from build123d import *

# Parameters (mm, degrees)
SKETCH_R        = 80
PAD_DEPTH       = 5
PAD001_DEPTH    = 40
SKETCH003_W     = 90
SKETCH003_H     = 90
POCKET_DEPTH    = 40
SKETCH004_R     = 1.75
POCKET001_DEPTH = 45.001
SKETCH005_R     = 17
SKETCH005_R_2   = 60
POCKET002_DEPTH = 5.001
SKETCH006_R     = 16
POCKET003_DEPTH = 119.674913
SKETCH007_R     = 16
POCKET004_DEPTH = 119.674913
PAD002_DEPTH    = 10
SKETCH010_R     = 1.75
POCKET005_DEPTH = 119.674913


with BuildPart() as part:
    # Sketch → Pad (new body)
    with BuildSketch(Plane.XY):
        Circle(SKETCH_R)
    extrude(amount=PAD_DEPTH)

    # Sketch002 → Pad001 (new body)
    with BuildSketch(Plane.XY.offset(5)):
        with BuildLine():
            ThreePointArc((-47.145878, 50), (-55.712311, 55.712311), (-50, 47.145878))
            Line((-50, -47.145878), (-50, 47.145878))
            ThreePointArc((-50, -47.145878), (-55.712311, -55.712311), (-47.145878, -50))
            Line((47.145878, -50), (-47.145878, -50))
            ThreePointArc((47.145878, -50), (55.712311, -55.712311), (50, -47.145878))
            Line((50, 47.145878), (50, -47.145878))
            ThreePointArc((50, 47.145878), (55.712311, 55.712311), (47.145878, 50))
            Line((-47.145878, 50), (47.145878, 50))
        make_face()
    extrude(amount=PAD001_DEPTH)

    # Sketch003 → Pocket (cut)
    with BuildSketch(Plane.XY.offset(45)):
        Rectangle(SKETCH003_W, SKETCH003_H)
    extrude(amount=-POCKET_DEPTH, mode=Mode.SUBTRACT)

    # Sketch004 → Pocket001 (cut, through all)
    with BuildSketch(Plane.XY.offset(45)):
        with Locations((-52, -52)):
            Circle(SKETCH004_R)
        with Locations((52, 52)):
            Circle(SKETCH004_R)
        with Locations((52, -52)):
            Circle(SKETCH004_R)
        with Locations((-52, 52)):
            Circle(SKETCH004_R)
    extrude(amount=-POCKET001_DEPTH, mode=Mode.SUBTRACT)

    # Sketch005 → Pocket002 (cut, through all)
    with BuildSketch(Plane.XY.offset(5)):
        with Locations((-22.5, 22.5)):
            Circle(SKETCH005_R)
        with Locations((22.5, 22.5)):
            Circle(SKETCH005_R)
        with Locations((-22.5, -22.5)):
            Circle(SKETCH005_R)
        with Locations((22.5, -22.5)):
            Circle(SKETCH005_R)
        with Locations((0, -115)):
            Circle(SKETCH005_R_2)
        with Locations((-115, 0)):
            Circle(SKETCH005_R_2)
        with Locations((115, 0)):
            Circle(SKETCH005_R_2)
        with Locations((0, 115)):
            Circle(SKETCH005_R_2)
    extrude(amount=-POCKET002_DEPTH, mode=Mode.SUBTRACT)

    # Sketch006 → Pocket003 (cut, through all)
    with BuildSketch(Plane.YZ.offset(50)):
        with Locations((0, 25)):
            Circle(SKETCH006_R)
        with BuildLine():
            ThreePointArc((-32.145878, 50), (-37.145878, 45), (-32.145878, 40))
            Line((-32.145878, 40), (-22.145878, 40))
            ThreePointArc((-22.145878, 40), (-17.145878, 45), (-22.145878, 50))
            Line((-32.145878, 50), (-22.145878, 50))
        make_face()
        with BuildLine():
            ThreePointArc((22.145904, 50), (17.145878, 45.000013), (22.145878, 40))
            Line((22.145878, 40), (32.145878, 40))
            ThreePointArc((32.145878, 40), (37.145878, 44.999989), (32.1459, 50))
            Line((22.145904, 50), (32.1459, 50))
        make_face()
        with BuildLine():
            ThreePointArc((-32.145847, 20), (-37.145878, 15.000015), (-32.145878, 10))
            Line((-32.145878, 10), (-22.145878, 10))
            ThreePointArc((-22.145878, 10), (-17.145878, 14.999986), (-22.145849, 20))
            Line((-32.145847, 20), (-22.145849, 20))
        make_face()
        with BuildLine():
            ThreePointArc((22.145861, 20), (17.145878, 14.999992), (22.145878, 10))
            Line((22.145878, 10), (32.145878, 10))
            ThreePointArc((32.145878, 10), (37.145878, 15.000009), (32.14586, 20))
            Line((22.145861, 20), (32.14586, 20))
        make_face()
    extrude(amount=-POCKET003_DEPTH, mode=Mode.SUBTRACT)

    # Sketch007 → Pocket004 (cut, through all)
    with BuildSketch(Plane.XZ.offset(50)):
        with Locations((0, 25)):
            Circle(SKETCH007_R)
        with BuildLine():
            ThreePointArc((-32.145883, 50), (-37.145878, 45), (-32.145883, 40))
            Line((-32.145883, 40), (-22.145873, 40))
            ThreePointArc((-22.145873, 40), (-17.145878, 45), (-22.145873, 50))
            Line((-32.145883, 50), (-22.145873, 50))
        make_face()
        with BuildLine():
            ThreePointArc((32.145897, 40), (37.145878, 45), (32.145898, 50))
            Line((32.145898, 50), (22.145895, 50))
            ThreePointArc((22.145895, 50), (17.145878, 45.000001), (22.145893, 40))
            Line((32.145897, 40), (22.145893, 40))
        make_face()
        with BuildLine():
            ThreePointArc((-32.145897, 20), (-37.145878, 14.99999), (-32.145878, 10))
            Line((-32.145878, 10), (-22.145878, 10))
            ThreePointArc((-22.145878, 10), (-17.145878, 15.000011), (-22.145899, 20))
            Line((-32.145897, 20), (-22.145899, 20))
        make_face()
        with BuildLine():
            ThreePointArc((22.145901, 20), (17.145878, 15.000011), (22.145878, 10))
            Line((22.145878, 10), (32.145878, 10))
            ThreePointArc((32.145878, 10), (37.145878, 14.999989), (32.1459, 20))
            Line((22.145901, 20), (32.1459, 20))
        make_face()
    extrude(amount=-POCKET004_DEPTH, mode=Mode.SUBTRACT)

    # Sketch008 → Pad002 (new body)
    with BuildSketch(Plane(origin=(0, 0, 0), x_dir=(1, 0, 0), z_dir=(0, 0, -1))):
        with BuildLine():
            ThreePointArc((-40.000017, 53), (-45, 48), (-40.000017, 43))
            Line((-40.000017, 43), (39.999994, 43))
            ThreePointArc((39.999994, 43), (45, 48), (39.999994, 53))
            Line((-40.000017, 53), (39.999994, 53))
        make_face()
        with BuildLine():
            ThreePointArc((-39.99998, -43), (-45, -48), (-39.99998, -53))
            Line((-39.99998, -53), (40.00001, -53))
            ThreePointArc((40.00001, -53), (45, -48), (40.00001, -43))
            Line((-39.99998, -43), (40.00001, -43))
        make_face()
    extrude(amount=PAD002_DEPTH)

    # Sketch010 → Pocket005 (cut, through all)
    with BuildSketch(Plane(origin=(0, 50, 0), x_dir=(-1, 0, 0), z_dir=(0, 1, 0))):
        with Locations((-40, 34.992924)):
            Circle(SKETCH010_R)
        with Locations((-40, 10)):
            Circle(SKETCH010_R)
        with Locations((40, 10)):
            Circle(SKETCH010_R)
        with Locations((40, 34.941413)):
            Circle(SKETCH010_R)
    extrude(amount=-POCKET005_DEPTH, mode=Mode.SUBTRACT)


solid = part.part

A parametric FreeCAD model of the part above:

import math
import FreeCAD as App
import Part
import Sketcher

V = App.Vector
Q = App.Units.Quantity


def add_polygon(sketch, points):
    """Adds a closed chain of lines whose ends are joined by coincident constraints."""
    first, n = sketch.GeometryCount, len(points)
    for a, b in zip(points, points[1:] + points[:1]):
        sketch.addGeometry(Part.LineSegment(App.Vector(*a, 0), App.Vector(*b, 0)), False)
    for i in range(n):
        sketch.addConstraint(Sketcher.Constraint("Coincident", first + i, 2, first + (i + 1) % n, 1))

doc = App.newDocument("Part")
body = doc.addObject("PartDesign::Body", "Body")

sketch1 = body.newObject("Sketcher::SketchObject", "Sketch")
sketch1.AttachmentSupport = (doc.getObject("XY_Plane"), [""])
sketch1.MapMode = "FlatFace"
sketch1.addGeometry(Part.Circle(V(0, 0, 0), V(0, 0, 1), 80), False)
sketch1.addConstraint(Sketcher.Constraint("Coincident", 0, 3, -1, 1))
sketch1.addConstraint(Sketcher.Constraint("Diameter", 0, Q("160 mm")))
pad1 = body.newObject("PartDesign::Pad", "Pad")
pad1.Profile = sketch1
pad1.Length = 5

sketch2 = body.newObject("Sketcher::SketchObject", "Sketch001")
sketch2.AttachmentSupport = (doc.getObject("XY_Plane"), [""])
sketch2.MapMode = "FlatFace"
sketch2.AttachmentOffset = App.Placement(V(0, 0, 5), App.Rotation())
sketch2.addGeometry(Part.ArcOfCircle(Part.Circle(V(-52, 52, 0), V(0, 0, 1), 5.3), math.radians(-22), math.radians(292)), False)
sketch2.addGeometry(Part.LineSegment(V(-50, 47.1, 0), V(-50, -47.1, 0)), False)
sketch2.addGeometry(Part.ArcOfCircle(Part.Circle(V(-52, -52, 0), V(0, 0, 1), 5.3), math.radians(68), math.radians(382)), False)
sketch2.addGeometry(Part.LineSegment(V(-47.1, -50, 0), V(47.1, -50, 0)), False)
sketch2.addGeometry(Part.ArcOfCircle(Part.Circle(V(52, -52, 0), V(0, 0, 1), 5.3), math.radians(158), math.radians(472)), False)
sketch2.addGeometry(Part.LineSegment(V(50, -47.1, 0), V(50, 47.1, 0)), False)
sketch2.addGeometry(Part.ArcOfCircle(Part.Circle(V(52, 52, 0), V(0, 0, 1), 5.3), math.radians(-112), math.radians(202)), False)
sketch2.addGeometry(Part.LineSegment(V(47.1, 50, 0), V(-47.1, 50, 0)), False)
sketch2.addConstraint(Sketcher.Constraint("Coincident", 0, 2, 1, 1))
sketch2.addConstraint(Sketcher.Constraint("Coincident", 1, 2, 2, 1))
sketch2.addConstraint(Sketcher.Constraint("Coincident", 2, 2, 3, 1))
sketch2.addConstraint(Sketcher.Constraint("Coincident", 3, 2, 4, 1))
sketch2.addConstraint(Sketcher.Constraint("Coincident", 4, 2, 5, 1))
sketch2.addConstraint(Sketcher.Constraint("Coincident", 5, 2, 6, 1))
sketch2.addConstraint(Sketcher.Constraint("Coincident", 6, 2, 7, 1))
sketch2.addConstraint(Sketcher.Constraint("Coincident", 7, 2, 0, 1))
sketch2.addConstraint(Sketcher.Constraint("Vertical", 1))
sketch2.addConstraint(Sketcher.Constraint("Horizontal", 3))
sketch2.addConstraint(Sketcher.Constraint("Vertical", 5))
sketch2.addConstraint(Sketcher.Constraint("Horizontal", 7))
sketch2.addConstraint(Sketcher.Constraint("Equal", 0, 2))
sketch2.addConstraint(Sketcher.Constraint("Equal", 2, 4))
sketch2.addConstraint(Sketcher.Constraint("Equal", 4, 6))
sketch2.addConstraint(Sketcher.Constraint("Symmetric", 0, 3, 4, 3, -1, 1))
sketch2.addConstraint(Sketcher.Constraint("Symmetric", 2, 3, 6, 3, -1, 1))
sketch2.addConstraint(Sketcher.Constraint("Symmetric", 2, 3, 4, 3, -2))
sketch2.addConstraint(Sketcher.Constraint("Horizontal", 1, 2, 4, 2))
sketch2.addConstraint(Sketcher.Constraint("Vertical", 3, 2, 6, 2))
sketch2.addConstraint(Sketcher.Constraint("Equal", 7, 1))
sketch2.addConstraint(Sketcher.Constraint("Radius", 0, Q("5.25 mm")))
sketch2.addConstraint(Sketcher.Constraint("DistanceX", 0, 3, -1, 1, Q("52 mm")))
sketch2.addConstraint(Sketcher.Constraint("DistanceY", -1, 1, 0, 3, Q("52 mm")))
sketch2.addConstraint(Sketcher.Constraint("DistanceX", 0, 2, -1, 1, Q("50 mm")))
pad2 = body.newObject("PartDesign::Pad", "Pad001")
pad2.Profile = sketch2
pad2.Length = 40

sketch3 = body.newObject("Sketcher::SketchObject", "Sketch002")
sketch3.AttachmentSupport = (doc.getObject("XY_Plane"), [""])
sketch3.MapMode = "FlatFace"
sketch3.AttachmentOffset = App.Placement(V(0, 0, 45), App.Rotation())
add_polygon(sketch3, [(-45, 45), (-45, -45), (45, -45), (45, 45)])
sketch3.addConstraint(Sketcher.Constraint("Vertical", 0))
sketch3.addConstraint(Sketcher.Constraint("Horizontal", 1))
sketch3.addConstraint(Sketcher.Constraint("Vertical", 2))
sketch3.addConstraint(Sketcher.Constraint("Horizontal", 3))
sketch3.addConstraint(Sketcher.Constraint("Symmetric", 0, 2, 2, 2, -1, 1))
sketch3.addConstraint(Sketcher.Constraint("Equal", 3, 0))
sketch3.addConstraint(Sketcher.Constraint("DistanceX", 1, 1, 1, 2, Q("90 mm")))
pocket1 = body.newObject("PartDesign::Pocket", "Pocket")
pocket1.Profile = sketch3
pocket1.Length = 40

sketch4 = body.newObject("Sketcher::SketchObject", "Sketch003")
sketch4.AttachmentSupport = (doc.getObject("XY_Plane"), [""])
sketch4.MapMode = "FlatFace"
sketch4.AttachmentOffset = App.Placement(V(0, 0, 45), App.Rotation())
sketch4.addGeometry(Part.Circle(V(-52, -52, 0), V(0, 0, 1), 1.8), False)
sketch4.addGeometry(Part.Circle(V(52, 52, 0), V(0, 0, 1), 1.8), False)
sketch4.addGeometry(Part.Circle(V(52, -52, 0), V(0, 0, 1), 1.8), False)
sketch4.addGeometry(Part.Circle(V(-52, 52, 0), V(0, 0, 1), 1.8), False)
sketch4.addConstraint(Sketcher.Constraint("Equal", 0, 1))
sketch4.addConstraint(Sketcher.Constraint("Equal", 1, 2))
sketch4.addConstraint(Sketcher.Constraint("Equal", 2, 3))
sketch4.addConstraint(Sketcher.Constraint("Symmetric", 0, 3, 1, 3, -1, 1))
sketch4.addConstraint(Sketcher.Constraint("Symmetric", 2, 3, 3, 3, -1, 1))
sketch4.addConstraint(Sketcher.Constraint("Symmetric", 0, 3, 2, 3, -2))
sketch4.addConstraint(Sketcher.Constraint("Diameter", 0, Q("3.5 mm")))
sketch4.addConstraint(Sketcher.Constraint("DistanceX", 0, 3, -1, 1, Q("52 mm")))
sketch4.addConstraint(Sketcher.Constraint("DistanceY", 0, 3, -1, 1, Q("52 mm")))
pocket2 = body.newObject("PartDesign::Pocket", "Pocket001")
pocket2.Profile = sketch4
pocket2.Type = "ThroughAll"

sketch5 = body.newObject("Sketcher::SketchObject", "Sketch004")
sketch5.AttachmentSupport = (doc.getObject("XY_Plane"), [""])
sketch5.MapMode = "FlatFace"
sketch5.AttachmentOffset = App.Placement(V(0, 0, 5), App.Rotation())
sketch5.addGeometry(Part.Circle(V(-22, 22, 0), V(0, 0, 1), 17), False)
sketch5.addGeometry(Part.Circle(V(22, 22, 0), V(0, 0, 1), 17), False)
sketch5.addGeometry(Part.Circle(V(-22, -22, 0), V(0, 0, 1), 17), False)
sketch5.addGeometry(Part.Circle(V(22, -22, 0), V(0, 0, 1), 17), False)
sketch5.addGeometry(Part.Circle(V(0, -115, 0), V(0, 0, 1), 60), False)
sketch5.addGeometry(Part.Circle(V(-115, 0, 0), V(0, 0, 1), 60), False)
sketch5.addGeometry(Part.Circle(V(115, 0, 0), V(0, 0, 1), 60), False)
sketch5.addGeometry(Part.Circle(V(0, 115, 0), V(0, 0, 1), 60), False)
sketch5.addConstraint(Sketcher.Constraint("Equal", 0, 1))
sketch5.addConstraint(Sketcher.Constraint("Equal", 1, 2))
sketch5.addConstraint(Sketcher.Constraint("Equal", 2, 3))
sketch5.addConstraint(Sketcher.Constraint("Equal", 4, 5))
sketch5.addConstraint(Sketcher.Constraint("Equal", 5, 6))
sketch5.addConstraint(Sketcher.Constraint("Equal", 6, 7))
sketch5.addConstraint(Sketcher.Constraint("Symmetric", 1, 3, 2, 3, -1, 1))
sketch5.addConstraint(Sketcher.Constraint("Symmetric", 0, 3, 3, 3, -1, 1))
sketch5.addConstraint(Sketcher.Constraint("Symmetric", 5, 3, 6, 3, -1, 1))
sketch5.addConstraint(Sketcher.Constraint("Symmetric", 4, 3, 7, 3, -1, 1))
sketch5.addConstraint(Sketcher.Constraint("Symmetric", 0, 3, 1, 3, -2))
sketch5.addConstraint(Sketcher.Constraint("PointOnObject", 4, 3, -2))
sketch5.addConstraint(Sketcher.Constraint("PointOnObject", 5, 3, -1))
sketch5.addConstraint(Sketcher.Constraint("Diameter", 0, Q("34 mm")))
sketch5.addConstraint(Sketcher.Constraint("Diameter", 4, Q("120 mm")))
sketch5.addConstraint(Sketcher.Constraint("DistanceY", 4, 3, -1, 1, Q("115 mm")))
sketch5.addConstraint(Sketcher.Constraint("DistanceX", 5, 3, -1, 1, Q("115 mm")))
sketch5.addConstraint(Sketcher.Constraint("DistanceX", 0, 3, 1, 3, Q("45 mm")))
sketch5.addConstraint(Sketcher.Constraint("DistanceY", 2, 3, 0, 3, Q("45 mm")))
pocket3 = body.newObject("PartDesign::Pocket", "Pocket002")
pocket3.Profile = sketch5
pocket3.Type = "ThroughAll"

sketch6 = body.newObject("Sketcher::SketchObject", "Sketch005")
sketch6.AttachmentSupport = (doc.getObject("YZ_Plane"), [""])
sketch6.MapMode = "FlatFace"
sketch6.AttachmentOffset = App.Placement(V(0, 0, 50), App.Rotation())
sketch6.addGeometry(Part.Circle(V(0, 25, 0), V(0, 0, 1), 16), False)
sketch6.addGeometry(Part.ArcOfCircle(Part.Circle(V(-32, 45, 0), V(0, 0, 1), 5), math.radians(90), math.radians(270)), False)
sketch6.addGeometry(Part.LineSegment(V(-32, 40, 0), V(-22, 40, 0)), False)
sketch6.addGeometry(Part.ArcOfCircle(Part.Circle(V(-22, 45, 0), V(0, 0, 1), 5), math.radians(-90), math.radians(90)), False)
sketch6.addGeometry(Part.LineSegment(V(-22, 50, 0), V(-32, 50, 0)), False)
sketch6.addGeometry(Part.ArcOfCircle(Part.Circle(V(22, 45, 0), V(0, 0, 1), 5), math.radians(90), math.radians(270)), False)
sketch6.addGeometry(Part.LineSegment(V(22, 40, 0), V(32, 40, 0)), False)
sketch6.addGeometry(Part.ArcOfCircle(Part.Circle(V(32, 45, 0), V(0, 0, 1), 5), math.radians(-90), math.radians(90)), False)
sketch6.addGeometry(Part.LineSegment(V(32, 50, 0), V(22, 50, 0)), False)
sketch6.addGeometry(Part.ArcOfCircle(Part.Circle(V(-32, 15, 0), V(0, 0, 1), 5), math.radians(90), math.radians(270)), False)
sketch6.addGeometry(Part.LineSegment(V(-32, 10, 0), V(-22, 10, 0)), False)
sketch6.addGeometry(Part.ArcOfCircle(Part.Circle(V(-22, 15, 0), V(0, 0, 1), 5), math.radians(-90), math.radians(90)), False)
sketch6.addGeometry(Part.LineSegment(V(-22, 20, 0), V(-32, 20, 0)), False)
sketch6.addGeometry(Part.ArcOfCircle(Part.Circle(V(22, 15, 0), V(0, 0, 1), 5), math.radians(90), math.radians(270)), False)
sketch6.addGeometry(Part.LineSegment(V(22, 10, 0), V(32, 10, 0)), False)
sketch6.addGeometry(Part.ArcOfCircle(Part.Circle(V(32, 15, 0), V(0, 0, 1), 5), math.radians(-90), math.radians(90)), False)
sketch6.addGeometry(Part.LineSegment(V(32, 20, 0), V(22, 20, 0)), False)
sketch6.addConstraint(Sketcher.Constraint("Tangent", 1, 2, 2, 1))
sketch6.addConstraint(Sketcher.Constraint("Tangent", 2, 2, 3, 1))
sketch6.addConstraint(Sketcher.Constraint("Tangent", 3, 2, 4, 1))
sketch6.addConstraint(Sketcher.Constraint("Tangent", 4, 2, 1, 1))
sketch6.addConstraint(Sketcher.Constraint("Tangent", 5, 2, 6, 1))
sketch6.addConstraint(Sketcher.Constraint("Tangent", 6, 2, 7, 1))
sketch6.addConstraint(Sketcher.Constraint("Coincident", 7, 2, 8, 1))
sketch6.addConstraint(Sketcher.Constraint("Coincident", 8, 2, 5, 1))
sketch6.addConstraint(Sketcher.Constraint("Tangent", 9, 2, 10, 1))
sketch6.addConstraint(Sketcher.Constraint("Tangent", 10, 2, 11, 1))
sketch6.addConstraint(Sketcher.Constraint("Coincident", 11, 2, 12, 1))
sketch6.addConstraint(Sketcher.Constraint("Coincident", 12, 2, 9, 1))
sketch6.addConstraint(Sketcher.Constraint("Tangent", 13, 2, 14, 1))
sketch6.addConstraint(Sketcher.Constraint("Tangent", 14, 2, 15, 1))
sketch6.addConstraint(Sketcher.Constraint("Coincident", 15, 2, 16, 1))
sketch6.addConstraint(Sketcher.Constraint("Coincident", 16, 2, 13, 1))
sketch6.addConstraint(Sketcher.Constraint("Horizontal", 2))
sketch6.addConstraint(Sketcher.Constraint("Horizontal", 4))
sketch6.addConstraint(Sketcher.Constraint("Horizontal", 6))
sketch6.addConstraint(Sketcher.Constraint("Horizontal", 8))
sketch6.addConstraint(Sketcher.Constraint("Horizontal", 10))
sketch6.addConstraint(Sketcher.Constraint("Horizontal", 12))
sketch6.addConstraint(Sketcher.Constraint("Horizontal", 14))
sketch6.addConstraint(Sketcher.Constraint("Horizontal", 16))
sketch6.addConstraint(Sketcher.Constraint("Equal", 3, 5))
sketch6.addConstraint(Sketcher.Constraint("Equal", 7, 9))
sketch6.addConstraint(Sketcher.Constraint("Equal", 11, 13))
sketch6.addConstraint(Sketcher.Constraint("Symmetric", 3, 3, 5, 3, -2))
sketch6.addConstraint(Sketcher.Constraint("Symmetric", 11, 3, 13, 3, -2))
sketch6.addConstraint(Sketcher.Constraint("PointOnObject", 0, 3, -2))
sketch6.addConstraint(Sketcher.Constraint("Vertical", 1, 3, 9, 3))
sketch6.addConstraint(Sketcher.Constraint("Vertical", 3, 3, 11, 3))
sketch6.addConstraint(Sketcher.Constraint("Vertical", 7, 3, 15, 3))
sketch6.addConstraint(Sketcher.Constraint("Equal", 4, 6))
sketch6.addConstraint(Sketcher.Constraint("Equal", 10, 12))
sketch6.addConstraint(Sketcher.Constraint("Equal", 14, 16))
sketch6.addConstraint(Sketcher.Constraint("Diameter", 0, Q("32 mm")))
sketch6.addConstraint(Sketcher.Constraint("Radius", 1, Q("5 mm")))
sketch6.addConstraint(Sketcher.Constraint("DistanceX", 2, 1, 2, 2, Q("10 mm")))
sketch6.addConstraint(Sketcher.Constraint("DistanceY", -1, 1, 0, 3, Q("25 mm")))
sketch6.addConstraint(Sketcher.Constraint("DistanceY", -1, 1, 1, 3, Q("45 mm")))
sketch6.addConstraint(Sketcher.Constraint("DistanceY", -1, 1, 9, 3, Q("15 mm")))
sketch6.addConstraint(Sketcher.Constraint("DistanceX", -1, 1, 7, 2, Q("32.1459 mm")))
sketch6.addConstraint(Sketcher.Constraint("DistanceX", 8, 2, 8, 1, Q("9.999996 mm")))
sketch6.addConstraint(Sketcher.Constraint("DistanceX", 1, 3, -1, 1, Q("32.145878 mm")))
sketch6.addConstraint(Sketcher.Constraint("DistanceX", 11, 2, -1, 1, Q("22.145849 mm")))
sketch6.addConstraint(Sketcher.Constraint("DistanceX", -1, 1, 15, 2, Q("32.14586 mm")))
pocket4 = body.newObject("PartDesign::Pocket", "Pocket003")
pocket4.Profile = sketch6
pocket4.Type = "ThroughAll"

sketch7 = body.newObject("Sketcher::SketchObject", "Sketch006")
sketch7.AttachmentSupport = (doc.getObject("XZ_Plane"), [""])
sketch7.MapMode = "FlatFace"
sketch7.AttachmentOffset = App.Placement(V(0, 0, 50), App.Rotation())
sketch7.addGeometry(Part.Circle(V(0, 25, 0), V(0, 0, 1), 16), False)
sketch7.addGeometry(Part.ArcOfCircle(Part.Circle(V(-32, 45, 0), V(0, 0, 1), 5), math.radians(90), math.radians(270)), False)
sketch7.addGeometry(Part.LineSegment(V(-32, 40, 0), V(-22, 40, 0)), False)
sketch7.addGeometry(Part.ArcOfCircle(Part.Circle(V(-22, 45, 0), V(0, 0, 1), 5), math.radians(-90), math.radians(90)), False)
sketch7.addGeometry(Part.LineSegment(V(-22, 50, 0), V(-32, 50, 0)), False)
sketch7.addGeometry(Part.ArcOfCircle(Part.Circle(V(32, 45, 0), V(0, 0, 1), 5), math.radians(-90), math.radians(90)), False)
sketch7.addGeometry(Part.LineSegment(V(32, 50, 0), V(22, 50, 0)), False)
sketch7.addGeometry(Part.ArcOfCircle(Part.Circle(V(22, 45, 0), V(0, 0, 1), 5), math.radians(90), math.radians(270)), False)
sketch7.addGeometry(Part.LineSegment(V(22, 40, 0), V(32, 40, 0)), False)
sketch7.addGeometry(Part.ArcOfCircle(Part.Circle(V(-32, 15, 0), V(0, 0, 1), 5), math.radians(90), math.radians(270)), False)
sketch7.addGeometry(Part.LineSegment(V(-32, 10, 0), V(-22, 10, 0)), False)
sketch7.addGeometry(Part.ArcOfCircle(Part.Circle(V(-22, 15, 0), V(0, 0, 1), 5), math.radians(-90), math.radians(90)), False)
sketch7.addGeometry(Part.LineSegment(V(-22, 20, 0), V(-32, 20, 0)), False)
sketch7.addGeometry(Part.ArcOfCircle(Part.Circle(V(22, 15, 0), V(0, 0, 1), 5), math.radians(90), math.radians(270)), False)
sketch7.addGeometry(Part.LineSegment(V(22, 10, 0), V(32, 10, 0)), False)
sketch7.addGeometry(Part.ArcOfCircle(Part.Circle(V(32, 15, 0), V(0, 0, 1), 5), math.radians(-90), math.radians(90)), False)
sketch7.addGeometry(Part.LineSegment(V(32, 20, 0), V(22, 20, 0)), False)
sketch7.addConstraint(Sketcher.Constraint("Tangent", 1, 2, 2, 1))
sketch7.addConstraint(Sketcher.Constraint("Tangent", 2, 2, 3, 1))
sketch7.addConstraint(Sketcher.Constraint("Tangent", 3, 2, 4, 1))
sketch7.addConstraint(Sketcher.Constraint("Tangent", 4, 2, 1, 1))
sketch7.addConstraint(Sketcher.Constraint("Coincident", 5, 2, 6, 1))
sketch7.addConstraint(Sketcher.Constraint("Coincident", 6, 2, 7, 1))
sketch7.addConstraint(Sketcher.Constraint("Coincident", 7, 2, 8, 1))
sketch7.addConstraint(Sketcher.Constraint("Coincident", 8, 2, 5, 1))
sketch7.addConstraint(Sketcher.Constraint("Tangent", 9, 2, 10, 1))
sketch7.addConstraint(Sketcher.Constraint("Tangent", 10, 2, 11, 1))
sketch7.addConstraint(Sketcher.Constraint("Coincident", 11, 2, 12, 1))
sketch7.addConstraint(Sketcher.Constraint("Coincident", 12, 2, 9, 1))
sketch7.addConstraint(Sketcher.Constraint("Tangent", 13, 2, 14, 1))
sketch7.addConstraint(Sketcher.Constraint("Tangent", 14, 2, 15, 1))
sketch7.addConstraint(Sketcher.Constraint("Coincident", 15, 2, 16, 1))
sketch7.addConstraint(Sketcher.Constraint("Coincident", 16, 2, 13, 1))
sketch7.addConstraint(Sketcher.Constraint("Horizontal", 2))
sketch7.addConstraint(Sketcher.Constraint("Horizontal", 4))
sketch7.addConstraint(Sketcher.Constraint("Horizontal", 6))
sketch7.addConstraint(Sketcher.Constraint("Horizontal", 8))
sketch7.addConstraint(Sketcher.Constraint("Horizontal", 10))
sketch7.addConstraint(Sketcher.Constraint("Horizontal", 12))
sketch7.addConstraint(Sketcher.Constraint("Horizontal", 14))
sketch7.addConstraint(Sketcher.Constraint("Horizontal", 16))
sketch7.addConstraint(Sketcher.Constraint("Equal", 3, 5))
sketch7.addConstraint(Sketcher.Constraint("Equal", 7, 9))
sketch7.addConstraint(Sketcher.Constraint("Equal", 11, 13))
sketch7.addConstraint(Sketcher.Constraint("Symmetric", 1, 3, 5, 3, -2))
sketch7.addConstraint(Sketcher.Constraint("Symmetric", 11, 3, 13, 3, -2))
sketch7.addConstraint(Sketcher.Constraint("PointOnObject", 0, 3, -2))
sketch7.addConstraint(Sketcher.Constraint("Vertical", 1, 3, 9, 3))
sketch7.addConstraint(Sketcher.Constraint("Vertical", 3, 3, 11, 3))
sketch7.addConstraint(Sketcher.Constraint("Vertical", 7, 3, 13, 3))
sketch7.addConstraint(Sketcher.Constraint("Vertical", 5, 3, 15, 3))
sketch7.addConstraint(Sketcher.Constraint("Vertical", 6, 2, 7, 2))
sketch7.addConstraint(Sketcher.Constraint("Vertical", 5, 2, 8, 2))
sketch7.addConstraint(Sketcher.Constraint("Vertical", 5, 2, 15, 2))
sketch7.addConstraint(Sketcher.Constraint("Equal", 14, 16))
sketch7.addConstraint(Sketcher.Constraint("Diameter", 0, Q("32 mm")))
sketch7.addConstraint(Sketcher.Constraint("Radius", 1, Q("5 mm")))
sketch7.addConstraint(Sketcher.Constraint("DistanceX", 10, 1, 10, 2, Q("10 mm")))
sketch7.addConstraint(Sketcher.Constraint("DistanceY", -1, 1, 0, 3, Q("25 mm")))
sketch7.addConstraint(Sketcher.Constraint("DistanceY", -1, 1, 1, 3, Q("45 mm")))
sketch7.addConstraint(Sketcher.Constraint("DistanceY", -1, 1, 9, 3, Q("15 mm")))
sketch7.addConstraint(Sketcher.Constraint("DistanceX", 6, 2, 8, 2, Q("10.000002 mm")))
sketch7.addConstraint(Sketcher.Constraint("DistanceX", -1, 1, 5, 2, Q("32.145898 mm")))
sketch7.addConstraint(Sketcher.Constraint("DistanceX", 11, 2, -1, 1, Q("22.145899 mm")))
sketch7.addConstraint(Sketcher.Constraint("DistanceX", 12, 2, 12, 1, Q("9.999998 mm")))
sketch7.addConstraint(Sketcher.Constraint("DistanceX", 1, 3, -1, 1, Q("32.145878 mm")))
pocket5 = body.newObject("PartDesign::Pocket", "Pocket004")
pocket5.Profile = sketch7
pocket5.Type = "ThroughAll"

sketch8 = body.newObject("Sketcher::SketchObject", "Sketch007")
sketch8.AttachmentSupport = (doc.getObject("XY_Plane"), [""])
sketch8.MapMode = "FlatFace"
sketch8.addGeometry(Part.ArcOfCircle(Part.Circle(V(-40, -48, 0), V(0, 0, 1), 5), math.radians(90), math.radians(270)), False)
sketch8.addGeometry(Part.LineSegment(V(-40, -43, 0), V(40, -43, 0)), False)
sketch8.addGeometry(Part.ArcOfCircle(Part.Circle(V(40, -48, 0), V(0, 0, 1), 5), math.radians(-90), math.radians(90)), False)
sketch8.addGeometry(Part.LineSegment(V(40, -53, 0), V(-40, -53, 0)), False)
sketch8.addGeometry(Part.ArcOfCircle(Part.Circle(V(-40, 48, 0), V(0, 0, 1), 5), math.radians(90), math.radians(270)), False)
sketch8.addGeometry(Part.LineSegment(V(-40, 53, 0), V(40, 53, 0)), False)
sketch8.addGeometry(Part.ArcOfCircle(Part.Circle(V(40, 48, 0), V(0, 0, 1), 5), math.radians(-90), math.radians(90)), False)
sketch8.addGeometry(Part.LineSegment(V(40, 43, 0), V(-40, 43, 0)), False)
sketch8.addConstraint(Sketcher.Constraint("Coincident", 0, 1, 1, 1))
sketch8.addConstraint(Sketcher.Constraint("Tangent", 1, 2, 2, 2))
sketch8.addConstraint(Sketcher.Constraint("Tangent", 2, 1, 3, 1))
sketch8.addConstraint(Sketcher.Constraint("Coincident", 3, 2, 0, 2))
sketch8.addConstraint(Sketcher.Constraint("Coincident", 4, 1, 5, 1))
sketch8.addConstraint(Sketcher.Constraint("Coincident", 5, 2, 6, 2))
sketch8.addConstraint(Sketcher.Constraint("Coincident", 6, 1, 7, 1))
sketch8.addConstraint(Sketcher.Constraint("Coincident", 7, 2, 4, 2))
sketch8.addConstraint(Sketcher.Constraint("Horizontal", 1))
sketch8.addConstraint(Sketcher.Constraint("Horizontal", 3))
sketch8.addConstraint(Sketcher.Constraint("Horizontal", 5))
sketch8.addConstraint(Sketcher.Constraint("Horizontal", 7))
sketch8.addConstraint(Sketcher.Constraint("Equal", 2, 4))
sketch8.addConstraint(Sketcher.Constraint("Symmetric", 2, 3, 4, 3, -1, 1))
sketch8.addConstraint(Sketcher.Constraint("Vertical", 0, 3, 4, 3))
sketch8.addConstraint(Sketcher.Constraint("Vertical", 2, 3, 6, 3))
sketch8.addConstraint(Sketcher.Constraint("Vertical", 0, 1, 3, 2))
sketch8.addConstraint(Sketcher.Constraint("Vertical", 5, 2, 6, 1))
sketch8.addConstraint(Sketcher.Constraint("Vertical", 4, 1, 7, 2))
sketch8.addConstraint(Sketcher.Constraint("Radius", 0, Q("5 mm")))
sketch8.addConstraint(Sketcher.Constraint("DistanceX", 0, 3, -1, 1, Q("40 mm")))
sketch8.addConstraint(Sketcher.Constraint("DistanceY", 0, 3, -1, 1, Q("48 mm")))
sketch8.addConstraint(Sketcher.Constraint("DistanceX", 1, 1, 1, 2, Q("80.000011 mm")))
sketch8.addConstraint(Sketcher.Constraint("DistanceX", 5, 1, 5, 2, Q("79.99999 mm")))
sketch8.addConstraint(Sketcher.Constraint("DistanceX", 4, 1, -1, 1, Q("39.99998 mm")))
pad3 = body.newObject("PartDesign::Pad", "Pad002")
pad3.Profile = sketch8
pad3.Length = 10
pad3.Reversed = True

sketch9 = body.newObject("Sketcher::SketchObject", "Sketch008")
sketch9.AttachmentSupport = (doc.getObject("XZ_Plane"), [""])
sketch9.MapMode = "FlatFace"
sketch9.AttachmentOffset = App.Placement(V(0, 0, -50), App.Rotation())
sketch9.addGeometry(Part.Circle(V(40, 35, 0), V(0, 0, 1), 1.8), False)
sketch9.addGeometry(Part.Circle(V(40, 10, 0), V(0, 0, 1), 1.8), False)
sketch9.addGeometry(Part.Circle(V(-40, 10, 0), V(0, 0, 1), 1.8), False)
sketch9.addGeometry(Part.Circle(V(-40, 34.9, 0), V(0, 0, 1), 1.8), False)
sketch9.addConstraint(Sketcher.Constraint("Equal", 0, 1))
sketch9.addConstraint(Sketcher.Constraint("Equal", 1, 2))
sketch9.addConstraint(Sketcher.Constraint("Equal", 2, 3))
sketch9.addConstraint(Sketcher.Constraint("Symmetric", 1, 3, 2, 3, -2))
sketch9.addConstraint(Sketcher.Constraint("Vertical", 0, 3, 1, 3))
sketch9.addConstraint(Sketcher.Constraint("Vertical", 2, 3, 3, 3))
sketch9.addConstraint(Sketcher.Constraint("Diameter", 0, Q("3.5 mm")))
sketch9.addConstraint(Sketcher.Constraint("DistanceX", -1, 1, 0, 3, Q("40 mm")))
sketch9.addConstraint(Sketcher.Constraint("DistanceY", -1, 1, 1, 3, Q("10 mm")))
sketch9.addConstraint(Sketcher.Constraint("DistanceY", 3, 3, 0, 3, Q("0.051511 mm")))
sketch9.addConstraint(Sketcher.Constraint("DistanceY", -1, 1, 0, 3, Q("34.992924 mm")))
pocket6 = body.newObject("PartDesign::Pocket", "Pocket005")
pocket6.Profile = sketch9
pocket6.Type = "ThroughAll"
pocket6.Reversed = True

doc.recompute()
